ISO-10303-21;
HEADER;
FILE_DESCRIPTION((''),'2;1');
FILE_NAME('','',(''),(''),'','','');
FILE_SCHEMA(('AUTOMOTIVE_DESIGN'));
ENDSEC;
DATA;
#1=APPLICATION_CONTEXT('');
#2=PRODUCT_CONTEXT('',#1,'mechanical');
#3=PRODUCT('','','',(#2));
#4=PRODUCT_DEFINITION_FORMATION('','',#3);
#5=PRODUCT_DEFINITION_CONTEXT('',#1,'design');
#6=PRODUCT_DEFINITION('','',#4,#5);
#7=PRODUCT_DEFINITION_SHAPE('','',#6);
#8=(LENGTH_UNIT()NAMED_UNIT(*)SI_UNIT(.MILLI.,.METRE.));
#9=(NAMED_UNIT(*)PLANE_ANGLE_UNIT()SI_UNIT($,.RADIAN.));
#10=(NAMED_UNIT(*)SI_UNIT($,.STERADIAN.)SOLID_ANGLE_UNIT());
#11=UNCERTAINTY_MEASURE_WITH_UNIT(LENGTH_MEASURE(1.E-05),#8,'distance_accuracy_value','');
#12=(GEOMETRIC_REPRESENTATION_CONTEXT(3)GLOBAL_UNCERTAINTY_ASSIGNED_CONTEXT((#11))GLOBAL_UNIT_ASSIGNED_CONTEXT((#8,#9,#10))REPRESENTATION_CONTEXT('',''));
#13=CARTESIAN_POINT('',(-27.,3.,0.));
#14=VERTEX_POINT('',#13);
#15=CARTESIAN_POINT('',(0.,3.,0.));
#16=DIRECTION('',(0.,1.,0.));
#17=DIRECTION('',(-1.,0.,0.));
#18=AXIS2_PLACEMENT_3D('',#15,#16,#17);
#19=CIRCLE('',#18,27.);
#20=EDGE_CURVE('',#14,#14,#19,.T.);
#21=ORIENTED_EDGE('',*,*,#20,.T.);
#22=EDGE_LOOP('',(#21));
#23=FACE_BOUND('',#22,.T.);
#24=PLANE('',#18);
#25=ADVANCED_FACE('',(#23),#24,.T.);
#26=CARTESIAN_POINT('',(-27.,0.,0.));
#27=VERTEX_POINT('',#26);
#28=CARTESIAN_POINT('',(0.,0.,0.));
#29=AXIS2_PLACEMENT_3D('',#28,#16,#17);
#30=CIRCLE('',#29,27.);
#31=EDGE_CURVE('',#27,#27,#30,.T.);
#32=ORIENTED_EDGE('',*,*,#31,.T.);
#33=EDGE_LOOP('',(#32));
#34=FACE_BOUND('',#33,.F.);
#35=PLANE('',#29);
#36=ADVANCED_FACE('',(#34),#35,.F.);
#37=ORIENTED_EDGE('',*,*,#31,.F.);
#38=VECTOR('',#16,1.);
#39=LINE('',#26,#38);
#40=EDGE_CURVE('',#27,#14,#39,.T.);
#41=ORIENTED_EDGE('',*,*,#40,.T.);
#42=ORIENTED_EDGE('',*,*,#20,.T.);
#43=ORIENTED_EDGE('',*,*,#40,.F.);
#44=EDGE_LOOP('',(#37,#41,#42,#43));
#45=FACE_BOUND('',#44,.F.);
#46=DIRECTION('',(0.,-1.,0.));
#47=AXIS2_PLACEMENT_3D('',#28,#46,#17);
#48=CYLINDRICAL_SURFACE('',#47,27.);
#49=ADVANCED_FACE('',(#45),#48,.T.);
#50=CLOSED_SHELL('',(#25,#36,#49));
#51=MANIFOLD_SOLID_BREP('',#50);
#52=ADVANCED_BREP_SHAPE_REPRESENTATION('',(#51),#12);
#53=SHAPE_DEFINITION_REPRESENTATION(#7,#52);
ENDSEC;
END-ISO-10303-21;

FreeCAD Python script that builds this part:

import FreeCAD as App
import Part
import Sketcher

V = App.Vector
Q = App.Units.Quantity

doc = App.newDocument("Part")
body = doc.addObject("PartDesign::Body", "Body")

# Sketch on XZ plane
sketch1 = body.newObject("Sketcher::SketchObject", "Sketch")
sketch1.AttachmentSupport = (doc.getObject("XZ_Plane"), [""])
sketch1.MapMode = "FlatFace"
sketch1.addGeometry(Part.Circle(V(0, 0, 0), V(0, 0, 1), 27), False)
sketch1.addConstraint([
    Sketcher.Constraint("Coincident", 0, 3, -1, 1),
    Sketcher.Constraint("Diameter", 0, Q("54 mm")),
])
pad1 = body.newObject("PartDesign::Pad", "Pad")
pad1.Profile = sketch1
pad1.Length = 3
pad1.Reversed = True

doc.recompute()
